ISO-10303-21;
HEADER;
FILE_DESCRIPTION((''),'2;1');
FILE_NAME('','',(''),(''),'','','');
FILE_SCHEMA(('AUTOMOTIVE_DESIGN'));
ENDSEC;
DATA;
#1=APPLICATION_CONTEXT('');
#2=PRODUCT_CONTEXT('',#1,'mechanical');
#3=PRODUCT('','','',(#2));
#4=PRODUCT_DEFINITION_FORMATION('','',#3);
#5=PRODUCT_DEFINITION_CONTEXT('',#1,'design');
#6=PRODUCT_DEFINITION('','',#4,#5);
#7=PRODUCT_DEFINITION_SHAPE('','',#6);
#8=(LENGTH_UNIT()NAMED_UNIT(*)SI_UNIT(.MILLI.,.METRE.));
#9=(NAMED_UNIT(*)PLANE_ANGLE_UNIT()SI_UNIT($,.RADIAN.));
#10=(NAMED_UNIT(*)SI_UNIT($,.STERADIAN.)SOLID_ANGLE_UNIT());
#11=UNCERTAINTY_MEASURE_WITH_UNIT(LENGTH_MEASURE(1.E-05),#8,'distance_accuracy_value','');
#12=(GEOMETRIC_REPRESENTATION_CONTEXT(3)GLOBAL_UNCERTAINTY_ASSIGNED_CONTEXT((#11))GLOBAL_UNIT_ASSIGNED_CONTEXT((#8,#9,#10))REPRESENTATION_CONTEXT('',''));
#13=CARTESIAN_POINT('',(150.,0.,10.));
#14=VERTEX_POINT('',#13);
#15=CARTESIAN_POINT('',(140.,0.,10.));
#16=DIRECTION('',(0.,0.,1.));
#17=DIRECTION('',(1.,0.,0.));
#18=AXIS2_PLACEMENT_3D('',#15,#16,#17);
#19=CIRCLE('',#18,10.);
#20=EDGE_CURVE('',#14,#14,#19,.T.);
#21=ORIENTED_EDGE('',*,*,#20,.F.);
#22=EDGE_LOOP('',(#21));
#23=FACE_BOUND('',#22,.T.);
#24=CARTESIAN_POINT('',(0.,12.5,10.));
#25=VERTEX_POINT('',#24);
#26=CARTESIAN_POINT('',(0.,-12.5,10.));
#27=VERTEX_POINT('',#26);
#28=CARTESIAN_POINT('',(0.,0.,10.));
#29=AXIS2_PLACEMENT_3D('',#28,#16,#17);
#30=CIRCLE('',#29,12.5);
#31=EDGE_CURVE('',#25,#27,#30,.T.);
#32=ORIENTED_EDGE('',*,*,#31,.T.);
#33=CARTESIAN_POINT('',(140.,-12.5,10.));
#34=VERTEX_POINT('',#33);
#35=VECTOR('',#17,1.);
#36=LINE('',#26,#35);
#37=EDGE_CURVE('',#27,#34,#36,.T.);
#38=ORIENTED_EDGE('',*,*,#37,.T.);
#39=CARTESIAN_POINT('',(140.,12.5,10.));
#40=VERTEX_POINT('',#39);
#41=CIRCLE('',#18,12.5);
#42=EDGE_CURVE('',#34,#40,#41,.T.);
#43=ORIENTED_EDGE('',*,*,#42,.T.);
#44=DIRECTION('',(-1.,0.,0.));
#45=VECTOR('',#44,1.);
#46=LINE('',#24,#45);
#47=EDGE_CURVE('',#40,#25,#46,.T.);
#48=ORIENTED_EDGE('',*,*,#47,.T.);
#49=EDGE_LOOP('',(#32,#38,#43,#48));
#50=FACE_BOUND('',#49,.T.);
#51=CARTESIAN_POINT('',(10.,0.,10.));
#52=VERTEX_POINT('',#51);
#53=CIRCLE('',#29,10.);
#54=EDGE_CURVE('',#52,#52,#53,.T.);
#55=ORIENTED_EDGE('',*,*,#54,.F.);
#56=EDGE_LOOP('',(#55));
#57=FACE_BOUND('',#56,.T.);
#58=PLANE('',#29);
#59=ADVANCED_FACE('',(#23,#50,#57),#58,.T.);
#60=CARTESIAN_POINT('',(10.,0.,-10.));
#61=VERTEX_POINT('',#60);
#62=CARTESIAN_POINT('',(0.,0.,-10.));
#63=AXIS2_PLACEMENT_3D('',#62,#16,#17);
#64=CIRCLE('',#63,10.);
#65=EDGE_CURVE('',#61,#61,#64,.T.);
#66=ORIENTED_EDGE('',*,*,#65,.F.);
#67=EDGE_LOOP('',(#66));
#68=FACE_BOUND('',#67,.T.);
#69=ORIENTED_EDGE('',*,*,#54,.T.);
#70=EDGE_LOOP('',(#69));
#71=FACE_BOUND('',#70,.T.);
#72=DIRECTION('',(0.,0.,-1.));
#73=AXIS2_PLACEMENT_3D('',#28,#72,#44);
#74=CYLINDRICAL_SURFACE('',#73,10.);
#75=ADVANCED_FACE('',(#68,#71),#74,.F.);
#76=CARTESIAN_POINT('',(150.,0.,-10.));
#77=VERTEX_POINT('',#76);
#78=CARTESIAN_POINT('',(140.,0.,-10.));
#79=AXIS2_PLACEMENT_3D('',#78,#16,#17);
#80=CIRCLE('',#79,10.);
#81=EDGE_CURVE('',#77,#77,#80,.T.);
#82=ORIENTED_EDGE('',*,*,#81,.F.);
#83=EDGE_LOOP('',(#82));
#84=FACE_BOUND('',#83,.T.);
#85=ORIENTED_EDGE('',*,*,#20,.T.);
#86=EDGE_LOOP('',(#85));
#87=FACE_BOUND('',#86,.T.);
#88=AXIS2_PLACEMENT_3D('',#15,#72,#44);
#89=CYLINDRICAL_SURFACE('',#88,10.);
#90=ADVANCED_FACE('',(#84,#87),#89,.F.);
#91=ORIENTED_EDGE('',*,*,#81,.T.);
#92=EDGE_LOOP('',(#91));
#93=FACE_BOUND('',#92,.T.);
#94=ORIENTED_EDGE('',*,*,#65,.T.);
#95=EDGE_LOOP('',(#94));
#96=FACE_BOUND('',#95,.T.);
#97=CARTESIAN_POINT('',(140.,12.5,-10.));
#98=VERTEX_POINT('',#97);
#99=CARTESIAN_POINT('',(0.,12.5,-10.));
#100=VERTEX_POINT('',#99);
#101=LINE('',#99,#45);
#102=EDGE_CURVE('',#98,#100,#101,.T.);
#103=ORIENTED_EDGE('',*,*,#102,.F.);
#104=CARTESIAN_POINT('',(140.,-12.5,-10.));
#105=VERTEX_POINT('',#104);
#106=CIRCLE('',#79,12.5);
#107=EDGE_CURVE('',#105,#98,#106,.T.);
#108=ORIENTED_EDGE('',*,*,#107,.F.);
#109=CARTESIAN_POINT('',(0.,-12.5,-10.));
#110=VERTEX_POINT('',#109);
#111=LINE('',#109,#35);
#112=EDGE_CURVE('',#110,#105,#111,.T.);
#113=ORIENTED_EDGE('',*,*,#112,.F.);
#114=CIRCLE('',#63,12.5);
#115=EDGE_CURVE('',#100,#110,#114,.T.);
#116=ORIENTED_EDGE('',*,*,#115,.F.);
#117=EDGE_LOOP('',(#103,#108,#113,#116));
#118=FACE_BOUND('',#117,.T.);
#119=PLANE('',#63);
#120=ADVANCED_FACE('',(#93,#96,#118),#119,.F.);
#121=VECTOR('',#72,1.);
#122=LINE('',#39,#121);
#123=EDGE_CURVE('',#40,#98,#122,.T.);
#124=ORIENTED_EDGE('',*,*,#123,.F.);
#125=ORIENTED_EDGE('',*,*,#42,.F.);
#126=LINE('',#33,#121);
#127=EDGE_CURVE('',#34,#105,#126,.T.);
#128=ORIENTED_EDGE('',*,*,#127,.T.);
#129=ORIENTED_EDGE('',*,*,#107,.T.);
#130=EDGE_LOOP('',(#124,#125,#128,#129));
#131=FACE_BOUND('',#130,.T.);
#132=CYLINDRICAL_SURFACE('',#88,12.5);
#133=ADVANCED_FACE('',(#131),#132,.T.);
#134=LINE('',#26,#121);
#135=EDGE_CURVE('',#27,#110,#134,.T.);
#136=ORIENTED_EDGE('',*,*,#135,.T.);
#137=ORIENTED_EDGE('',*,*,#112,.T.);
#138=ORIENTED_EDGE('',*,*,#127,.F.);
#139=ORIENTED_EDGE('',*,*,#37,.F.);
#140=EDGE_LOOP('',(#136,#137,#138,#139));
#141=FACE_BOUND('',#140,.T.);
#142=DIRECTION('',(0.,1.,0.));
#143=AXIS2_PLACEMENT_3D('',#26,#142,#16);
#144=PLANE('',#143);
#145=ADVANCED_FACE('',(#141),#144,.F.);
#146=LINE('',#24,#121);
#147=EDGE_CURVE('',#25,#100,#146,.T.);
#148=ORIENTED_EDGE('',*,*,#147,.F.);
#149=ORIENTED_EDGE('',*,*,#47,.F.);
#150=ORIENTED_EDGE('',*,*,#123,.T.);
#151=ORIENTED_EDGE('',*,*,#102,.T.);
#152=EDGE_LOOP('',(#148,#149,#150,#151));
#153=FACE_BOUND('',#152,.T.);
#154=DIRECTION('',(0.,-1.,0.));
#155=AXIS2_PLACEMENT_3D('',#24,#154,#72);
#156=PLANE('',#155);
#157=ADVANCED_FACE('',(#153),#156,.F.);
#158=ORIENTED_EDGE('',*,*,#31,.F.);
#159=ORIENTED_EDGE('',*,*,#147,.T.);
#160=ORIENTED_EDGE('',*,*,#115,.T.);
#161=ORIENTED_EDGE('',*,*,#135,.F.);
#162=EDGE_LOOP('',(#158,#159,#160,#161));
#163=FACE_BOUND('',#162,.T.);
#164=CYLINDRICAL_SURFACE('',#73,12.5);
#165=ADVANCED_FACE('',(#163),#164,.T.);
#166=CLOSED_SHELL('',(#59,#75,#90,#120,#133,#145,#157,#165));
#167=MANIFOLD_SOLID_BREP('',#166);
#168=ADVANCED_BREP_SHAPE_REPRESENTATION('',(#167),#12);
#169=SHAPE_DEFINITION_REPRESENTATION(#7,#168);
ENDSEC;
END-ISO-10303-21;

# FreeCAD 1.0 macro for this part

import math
import FreeCAD as App
import Part
import Sketcher
from FreeCAD import Vector
Q = App.Units.Quantity

doc = App.newDocument("Part")
params = doc.addObject("Spreadsheet::Sheet", "Params")
for row, (alias, value) in enumerate([
    ("sketch1_diameter", "20 mm"),
    ("sketch1_radius", "12.5 mm"),
    ("sketch1_width", "140 mm"),
    ("pad1_length", "20 mm"),
], start=1):
    params.set(f"A{row}", alias)
    params.set(f"B{row}", "=" + value)
    params.setAlias(f"B{row}", alias)

body = doc.addObject("PartDesign::Body", "Body")

# Sketch on XY plane
sketch1 = doc.addObject("Sketcher::SketchObject", "Sketch")
body.addObject(sketch1)
sketch1.AttachmentSupport = (doc.XY_Plane, [""])
sketch1.MapMode = "FlatFace"
sketch1.addGeometry([
    Part.LineSegment(Vector(140, 12, 0), Vector(0, 12, 0)),  # 0
    Part.ArcOfCircle(Part.Circle(Vector(0, 0, 0), Vector(0, 0, 1), 12), math.radians(90), math.radians(270)),  # 1
    Part.LineSegment(Vector(0, -12, 0), Vector(140, -12, 0)),  # 2
    Part.ArcOfCircle(Part.Circle(Vector(140, 0, 0), Vector(0, 0, 1), 12), math.radians(-90), math.radians(90)),  # 3
    Part.Circle(Vector(140, 0, 0), Vector(0, 0, 1), 10),  # 4
    Part.Circle(Vector(0, 0, 0), Vector(0, 0, 1), 10),  # 5
], False)
sketch1.addConstraint([
    Sketcher.Constraint("Tangent", 0, 2, 1, 1),
    Sketcher.Constraint("Tangent", 1, 2, 2, 1),
    Sketcher.Constraint("Tangent", 2, 2, 3, 1),
    Sketcher.Constraint("Tangent", 3, 2, 0, 1),
    Sketcher.Constraint("Horizontal", 0),
    Sketcher.Constraint("Horizontal", 2),
    Sketcher.Constraint("Coincident", 1, 3, -1, 1),
    Sketcher.Constraint("Coincident", 5, 3, -1, 1),
    Sketcher.Constraint("Coincident", 4, 3, 3, 3),
    Sketcher.Constraint("Equal", 4, 5),
    Sketcher.Constraint("Diameter", 4, Q("20 mm")),
    Sketcher.Constraint("Radius", 1, Q("12.5 mm")),
    Sketcher.Constraint("DistanceX", 0, 2, 0, 1, Q("140 mm")),
])
sketch1.setExpression("Constraints[10]", "Params.sketch1_diameter")
sketch1.setExpression("Constraints[11]", "Params.sketch1_radius")
sketch1.setExpression("Constraints[12]", "Params.sketch1_width")
pad1 = doc.addObject("PartDesign::Pad", "Pad")
body.addObject(pad1)
pad1.Profile = sketch1
pad1.setExpression("Length", "Params.pad1_length")
pad1.Midplane = True

doc.recompute()
